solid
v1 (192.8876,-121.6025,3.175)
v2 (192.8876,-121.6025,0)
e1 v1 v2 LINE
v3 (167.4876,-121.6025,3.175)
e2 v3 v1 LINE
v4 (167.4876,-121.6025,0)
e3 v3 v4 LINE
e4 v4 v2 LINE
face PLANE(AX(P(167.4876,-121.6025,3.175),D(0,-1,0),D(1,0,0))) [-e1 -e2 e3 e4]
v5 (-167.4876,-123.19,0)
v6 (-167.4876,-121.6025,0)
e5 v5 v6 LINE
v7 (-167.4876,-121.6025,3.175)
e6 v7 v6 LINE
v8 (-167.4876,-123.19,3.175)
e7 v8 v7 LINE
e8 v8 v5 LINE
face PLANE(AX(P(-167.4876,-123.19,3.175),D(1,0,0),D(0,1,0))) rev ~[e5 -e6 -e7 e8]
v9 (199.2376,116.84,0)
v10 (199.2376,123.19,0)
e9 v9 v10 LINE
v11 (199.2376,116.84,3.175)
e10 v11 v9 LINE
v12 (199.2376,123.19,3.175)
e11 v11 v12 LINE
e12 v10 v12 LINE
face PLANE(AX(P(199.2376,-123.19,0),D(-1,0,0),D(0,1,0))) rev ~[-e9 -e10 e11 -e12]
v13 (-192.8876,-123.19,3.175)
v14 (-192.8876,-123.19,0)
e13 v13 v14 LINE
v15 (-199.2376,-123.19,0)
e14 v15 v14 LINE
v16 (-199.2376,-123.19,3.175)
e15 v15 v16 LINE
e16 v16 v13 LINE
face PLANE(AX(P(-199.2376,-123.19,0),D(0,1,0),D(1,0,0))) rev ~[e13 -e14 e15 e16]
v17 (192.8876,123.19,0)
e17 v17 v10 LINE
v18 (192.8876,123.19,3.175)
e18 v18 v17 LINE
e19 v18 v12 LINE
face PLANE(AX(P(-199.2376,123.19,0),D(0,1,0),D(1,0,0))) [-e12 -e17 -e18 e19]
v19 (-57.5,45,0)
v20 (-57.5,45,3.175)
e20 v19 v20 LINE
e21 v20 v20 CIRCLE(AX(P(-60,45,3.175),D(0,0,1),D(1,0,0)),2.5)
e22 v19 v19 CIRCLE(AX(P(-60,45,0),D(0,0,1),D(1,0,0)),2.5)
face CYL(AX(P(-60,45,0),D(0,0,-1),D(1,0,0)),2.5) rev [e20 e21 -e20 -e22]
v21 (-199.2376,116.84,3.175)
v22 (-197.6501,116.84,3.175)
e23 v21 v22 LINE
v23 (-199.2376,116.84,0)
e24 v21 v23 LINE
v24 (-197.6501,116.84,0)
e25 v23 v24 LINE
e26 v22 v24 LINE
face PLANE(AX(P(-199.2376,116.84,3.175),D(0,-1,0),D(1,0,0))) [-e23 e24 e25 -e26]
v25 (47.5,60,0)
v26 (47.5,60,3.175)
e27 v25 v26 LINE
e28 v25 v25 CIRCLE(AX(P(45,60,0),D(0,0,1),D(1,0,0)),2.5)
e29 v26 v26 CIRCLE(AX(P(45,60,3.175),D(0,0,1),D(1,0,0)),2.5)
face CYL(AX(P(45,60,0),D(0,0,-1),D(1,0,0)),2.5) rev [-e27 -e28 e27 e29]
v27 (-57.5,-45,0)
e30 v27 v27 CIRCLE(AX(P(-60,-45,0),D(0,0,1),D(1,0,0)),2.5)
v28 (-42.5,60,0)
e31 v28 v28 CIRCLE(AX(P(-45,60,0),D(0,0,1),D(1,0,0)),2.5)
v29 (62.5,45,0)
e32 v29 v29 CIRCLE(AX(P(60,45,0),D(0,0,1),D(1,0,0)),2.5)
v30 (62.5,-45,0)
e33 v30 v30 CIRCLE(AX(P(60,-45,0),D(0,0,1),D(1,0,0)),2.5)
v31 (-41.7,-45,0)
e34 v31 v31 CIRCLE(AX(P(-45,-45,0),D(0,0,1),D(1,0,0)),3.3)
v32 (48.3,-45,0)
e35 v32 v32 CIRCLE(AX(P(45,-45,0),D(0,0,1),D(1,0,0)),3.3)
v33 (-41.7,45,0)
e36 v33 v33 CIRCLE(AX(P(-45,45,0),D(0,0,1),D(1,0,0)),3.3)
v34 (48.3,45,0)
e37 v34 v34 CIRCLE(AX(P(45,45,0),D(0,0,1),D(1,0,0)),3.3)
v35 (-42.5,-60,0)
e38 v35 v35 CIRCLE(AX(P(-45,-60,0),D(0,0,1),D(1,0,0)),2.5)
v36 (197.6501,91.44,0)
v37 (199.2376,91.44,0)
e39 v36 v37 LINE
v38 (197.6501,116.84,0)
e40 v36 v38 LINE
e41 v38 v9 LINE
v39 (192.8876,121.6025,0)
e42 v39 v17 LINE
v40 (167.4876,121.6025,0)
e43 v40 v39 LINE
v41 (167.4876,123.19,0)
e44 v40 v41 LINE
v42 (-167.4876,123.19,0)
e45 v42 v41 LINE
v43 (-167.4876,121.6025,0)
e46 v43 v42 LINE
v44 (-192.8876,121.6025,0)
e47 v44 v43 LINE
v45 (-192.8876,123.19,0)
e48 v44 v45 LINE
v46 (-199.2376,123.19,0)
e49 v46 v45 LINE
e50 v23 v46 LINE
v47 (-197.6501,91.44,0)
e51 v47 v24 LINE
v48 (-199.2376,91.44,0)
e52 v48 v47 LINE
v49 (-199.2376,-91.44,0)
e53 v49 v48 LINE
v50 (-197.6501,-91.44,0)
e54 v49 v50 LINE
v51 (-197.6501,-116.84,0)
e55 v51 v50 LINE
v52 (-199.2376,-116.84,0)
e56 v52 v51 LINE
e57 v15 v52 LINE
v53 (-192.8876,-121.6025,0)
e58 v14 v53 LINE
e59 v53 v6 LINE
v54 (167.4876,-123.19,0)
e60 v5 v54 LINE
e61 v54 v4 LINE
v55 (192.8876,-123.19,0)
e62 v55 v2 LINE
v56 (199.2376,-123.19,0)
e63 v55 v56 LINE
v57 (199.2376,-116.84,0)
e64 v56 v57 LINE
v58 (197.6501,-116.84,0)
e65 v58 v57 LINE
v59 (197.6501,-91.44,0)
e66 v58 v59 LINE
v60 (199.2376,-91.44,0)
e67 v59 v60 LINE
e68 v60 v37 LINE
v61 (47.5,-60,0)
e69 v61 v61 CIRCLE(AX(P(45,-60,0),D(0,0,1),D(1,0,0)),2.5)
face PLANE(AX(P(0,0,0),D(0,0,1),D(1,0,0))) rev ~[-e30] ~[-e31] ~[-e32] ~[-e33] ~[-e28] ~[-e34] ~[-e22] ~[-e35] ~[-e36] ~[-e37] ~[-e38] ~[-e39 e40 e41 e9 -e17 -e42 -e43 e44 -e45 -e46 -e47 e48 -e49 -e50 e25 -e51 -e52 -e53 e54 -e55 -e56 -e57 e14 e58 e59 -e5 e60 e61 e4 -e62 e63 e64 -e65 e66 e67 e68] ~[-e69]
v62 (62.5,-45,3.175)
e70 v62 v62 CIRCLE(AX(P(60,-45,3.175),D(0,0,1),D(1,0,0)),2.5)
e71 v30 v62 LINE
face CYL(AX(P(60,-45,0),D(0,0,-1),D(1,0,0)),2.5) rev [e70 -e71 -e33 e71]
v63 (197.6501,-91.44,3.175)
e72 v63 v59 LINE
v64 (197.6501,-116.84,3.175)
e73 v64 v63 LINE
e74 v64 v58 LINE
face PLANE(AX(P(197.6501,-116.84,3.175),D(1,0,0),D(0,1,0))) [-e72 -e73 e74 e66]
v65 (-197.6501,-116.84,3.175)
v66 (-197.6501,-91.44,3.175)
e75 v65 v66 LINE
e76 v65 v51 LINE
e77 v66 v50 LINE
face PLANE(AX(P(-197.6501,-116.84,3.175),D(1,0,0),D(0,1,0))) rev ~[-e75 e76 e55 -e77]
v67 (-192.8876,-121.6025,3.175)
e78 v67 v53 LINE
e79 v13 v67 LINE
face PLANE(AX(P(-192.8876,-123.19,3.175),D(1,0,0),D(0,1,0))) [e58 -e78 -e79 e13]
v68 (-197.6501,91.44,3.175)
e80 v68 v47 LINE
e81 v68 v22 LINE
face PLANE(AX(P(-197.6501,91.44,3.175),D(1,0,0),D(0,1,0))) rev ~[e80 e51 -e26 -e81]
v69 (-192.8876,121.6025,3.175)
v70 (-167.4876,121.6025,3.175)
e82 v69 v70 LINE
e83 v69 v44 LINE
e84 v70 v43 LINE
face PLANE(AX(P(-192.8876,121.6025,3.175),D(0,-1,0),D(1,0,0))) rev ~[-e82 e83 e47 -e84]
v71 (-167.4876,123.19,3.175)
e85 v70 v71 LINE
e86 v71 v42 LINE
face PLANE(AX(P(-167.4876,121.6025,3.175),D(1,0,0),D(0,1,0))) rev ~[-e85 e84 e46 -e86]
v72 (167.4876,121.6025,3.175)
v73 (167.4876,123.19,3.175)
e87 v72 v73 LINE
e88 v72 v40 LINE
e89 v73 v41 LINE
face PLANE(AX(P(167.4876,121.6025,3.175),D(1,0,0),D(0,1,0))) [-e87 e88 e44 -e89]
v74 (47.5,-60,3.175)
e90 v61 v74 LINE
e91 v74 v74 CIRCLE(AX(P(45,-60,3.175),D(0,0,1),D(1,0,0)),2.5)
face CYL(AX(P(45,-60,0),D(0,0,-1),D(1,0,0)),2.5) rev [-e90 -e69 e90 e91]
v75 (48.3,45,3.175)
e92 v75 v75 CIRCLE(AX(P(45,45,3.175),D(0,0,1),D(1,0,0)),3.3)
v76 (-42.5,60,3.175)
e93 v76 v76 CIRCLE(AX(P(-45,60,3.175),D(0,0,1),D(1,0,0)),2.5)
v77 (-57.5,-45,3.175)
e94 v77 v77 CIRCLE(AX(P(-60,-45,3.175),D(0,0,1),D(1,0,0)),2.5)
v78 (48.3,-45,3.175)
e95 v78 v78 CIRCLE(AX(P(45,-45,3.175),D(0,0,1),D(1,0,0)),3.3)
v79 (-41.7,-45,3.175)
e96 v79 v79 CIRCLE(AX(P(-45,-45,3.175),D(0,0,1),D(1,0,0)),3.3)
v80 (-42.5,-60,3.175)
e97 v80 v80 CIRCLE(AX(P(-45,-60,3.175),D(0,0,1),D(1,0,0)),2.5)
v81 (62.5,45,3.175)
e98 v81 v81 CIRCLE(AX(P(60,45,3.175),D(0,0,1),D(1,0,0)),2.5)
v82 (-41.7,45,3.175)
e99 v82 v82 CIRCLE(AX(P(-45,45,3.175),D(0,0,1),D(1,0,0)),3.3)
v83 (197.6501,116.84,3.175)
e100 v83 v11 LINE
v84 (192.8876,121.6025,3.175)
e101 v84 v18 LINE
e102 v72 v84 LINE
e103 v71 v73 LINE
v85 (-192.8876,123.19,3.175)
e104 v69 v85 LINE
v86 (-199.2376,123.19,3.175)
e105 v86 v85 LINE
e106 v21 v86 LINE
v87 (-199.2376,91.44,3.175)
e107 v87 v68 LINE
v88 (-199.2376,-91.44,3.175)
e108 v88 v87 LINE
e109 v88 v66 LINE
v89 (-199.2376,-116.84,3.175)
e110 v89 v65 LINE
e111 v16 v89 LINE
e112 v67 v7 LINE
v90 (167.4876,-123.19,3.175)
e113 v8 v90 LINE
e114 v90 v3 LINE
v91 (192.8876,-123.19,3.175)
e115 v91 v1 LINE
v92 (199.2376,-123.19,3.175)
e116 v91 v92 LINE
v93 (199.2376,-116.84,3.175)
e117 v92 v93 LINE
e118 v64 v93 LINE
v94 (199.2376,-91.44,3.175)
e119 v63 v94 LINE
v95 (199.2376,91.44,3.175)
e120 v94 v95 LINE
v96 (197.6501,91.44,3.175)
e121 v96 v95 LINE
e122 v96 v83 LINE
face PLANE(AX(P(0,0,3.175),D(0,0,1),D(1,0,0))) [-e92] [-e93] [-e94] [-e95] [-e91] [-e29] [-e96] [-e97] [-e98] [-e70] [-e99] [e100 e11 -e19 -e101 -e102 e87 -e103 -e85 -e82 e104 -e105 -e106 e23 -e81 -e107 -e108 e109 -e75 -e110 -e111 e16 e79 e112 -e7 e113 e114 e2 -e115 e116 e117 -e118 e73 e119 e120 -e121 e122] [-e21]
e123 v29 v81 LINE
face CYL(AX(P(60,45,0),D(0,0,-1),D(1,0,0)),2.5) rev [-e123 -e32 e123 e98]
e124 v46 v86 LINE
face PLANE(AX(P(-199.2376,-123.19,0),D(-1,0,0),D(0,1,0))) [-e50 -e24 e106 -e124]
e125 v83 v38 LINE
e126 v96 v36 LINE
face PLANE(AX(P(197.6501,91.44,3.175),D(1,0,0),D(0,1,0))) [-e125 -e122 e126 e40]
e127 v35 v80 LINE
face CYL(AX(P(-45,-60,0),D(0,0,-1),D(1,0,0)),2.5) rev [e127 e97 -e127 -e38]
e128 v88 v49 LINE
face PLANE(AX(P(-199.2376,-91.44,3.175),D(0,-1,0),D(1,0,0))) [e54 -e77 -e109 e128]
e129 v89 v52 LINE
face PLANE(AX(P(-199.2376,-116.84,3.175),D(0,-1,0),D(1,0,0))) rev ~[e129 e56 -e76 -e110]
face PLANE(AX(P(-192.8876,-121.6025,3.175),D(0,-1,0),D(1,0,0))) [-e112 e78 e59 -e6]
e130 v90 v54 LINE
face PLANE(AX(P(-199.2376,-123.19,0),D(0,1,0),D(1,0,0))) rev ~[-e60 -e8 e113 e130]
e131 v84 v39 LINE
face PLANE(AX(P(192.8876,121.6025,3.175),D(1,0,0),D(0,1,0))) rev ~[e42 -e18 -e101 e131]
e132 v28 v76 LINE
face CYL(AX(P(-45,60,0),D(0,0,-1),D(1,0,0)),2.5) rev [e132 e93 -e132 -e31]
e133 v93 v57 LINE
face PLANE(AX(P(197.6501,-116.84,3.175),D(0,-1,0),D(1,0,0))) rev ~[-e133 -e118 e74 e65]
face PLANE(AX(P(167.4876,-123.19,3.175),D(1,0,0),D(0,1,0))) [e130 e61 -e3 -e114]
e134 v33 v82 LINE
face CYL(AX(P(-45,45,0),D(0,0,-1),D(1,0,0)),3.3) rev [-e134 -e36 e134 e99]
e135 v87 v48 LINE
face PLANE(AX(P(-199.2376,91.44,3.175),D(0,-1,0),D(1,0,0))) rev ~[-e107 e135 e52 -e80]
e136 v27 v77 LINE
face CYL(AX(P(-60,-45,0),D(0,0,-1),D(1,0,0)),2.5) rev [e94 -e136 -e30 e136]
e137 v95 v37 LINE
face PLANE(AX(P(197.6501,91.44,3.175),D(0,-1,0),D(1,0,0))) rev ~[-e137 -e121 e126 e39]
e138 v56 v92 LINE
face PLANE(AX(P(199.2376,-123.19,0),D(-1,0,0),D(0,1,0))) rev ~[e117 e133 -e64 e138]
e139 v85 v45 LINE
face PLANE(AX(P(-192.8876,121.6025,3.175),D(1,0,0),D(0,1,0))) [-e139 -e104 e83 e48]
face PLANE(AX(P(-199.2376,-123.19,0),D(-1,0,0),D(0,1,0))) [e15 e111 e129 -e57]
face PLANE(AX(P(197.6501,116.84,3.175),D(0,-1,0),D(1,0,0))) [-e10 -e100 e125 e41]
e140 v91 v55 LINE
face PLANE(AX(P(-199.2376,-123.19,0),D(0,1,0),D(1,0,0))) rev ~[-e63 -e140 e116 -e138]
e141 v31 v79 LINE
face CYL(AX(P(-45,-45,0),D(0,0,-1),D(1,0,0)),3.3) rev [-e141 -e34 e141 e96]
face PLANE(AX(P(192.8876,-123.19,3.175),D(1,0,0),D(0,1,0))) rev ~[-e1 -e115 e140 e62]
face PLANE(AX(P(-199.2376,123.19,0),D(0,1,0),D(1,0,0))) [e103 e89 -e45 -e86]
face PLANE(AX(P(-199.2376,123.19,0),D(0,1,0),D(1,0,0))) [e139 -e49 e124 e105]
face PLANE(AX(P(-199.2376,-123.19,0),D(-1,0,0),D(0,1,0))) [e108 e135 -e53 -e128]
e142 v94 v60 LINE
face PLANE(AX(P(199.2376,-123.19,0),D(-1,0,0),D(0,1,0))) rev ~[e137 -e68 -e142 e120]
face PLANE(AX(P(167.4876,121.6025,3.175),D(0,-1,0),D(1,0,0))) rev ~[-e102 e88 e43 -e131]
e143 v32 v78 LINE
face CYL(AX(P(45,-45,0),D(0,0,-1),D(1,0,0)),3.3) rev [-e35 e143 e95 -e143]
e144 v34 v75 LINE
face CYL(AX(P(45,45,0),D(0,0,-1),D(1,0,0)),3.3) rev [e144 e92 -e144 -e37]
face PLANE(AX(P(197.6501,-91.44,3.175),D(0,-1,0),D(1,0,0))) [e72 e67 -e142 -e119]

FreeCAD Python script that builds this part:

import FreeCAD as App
import Part
import Sketcher
from FreeCAD import Vector
Q = App.Units.Quantity

doc = App.newDocument("Part")
body = doc.addObject("PartDesign::Body", "Body")

# Sketch on XY plane
sketch1 = body.newObject("Sketcher::SketchObject", "Sketch")
sketch1.AttachmentSupport = (doc.getObject("XY_Plane"), [""])
sketch1.MapMode = "FlatFace"
sketch1.addGeometry([
    Part.LineSegment(Vector(-199.2376, 123.19, 0), Vector(-199.2376, -123.19, 0)),  # 0
    Part.LineSegment(Vector(-199.2376, -123.19, 0), Vector(199.2376, -123.19, 0)),  # 1
    Part.LineSegment(Vector(199.2376, -123.19, 0), Vector(199.2376, 123.19, 0)),  # 2
    Part.LineSegment(Vector(199.2376, 123.19, 0), Vector(-199.2376, 123.19, 0)),  # 3
    Part.Circle(Vector(-45, -60, 0), Vector(0, 0, 1), 2.5),  # 4
    Part.Circle(Vector(-60, -45, 0), Vector(0, 0, 1), 2.5),  # 5
    Part.Circle(Vector(-45, -45, 0), Vector(0, 0, 1), 3.3),  # 6
    Part.Circle(Vector(45, -60, 0), Vector(0, 0, 1), 2.5),  # 7
    Part.Circle(Vector(45, -45, 0), Vector(0, 0, 1), 3.3),  # 8
    Part.Circle(Vector(60, -45, 0), Vector(0, 0, 1), 2.5),  # 9
    Part.Circle(Vector(-60, 45, 0), Vector(0, 0, 1), 2.5),  # 10
    Part.Circle(Vector(-45, 45, 0), Vector(0, 0, 1), 3.3),  # 11
    Part.Circle(Vector(-45, 60, 0), Vector(0, 0, 1), 2.5),  # 12
    Part.Circle(Vector(45, 45, 0), Vector(0, 0, 1), 3.3),  # 13
    Part.Circle(Vector(60, 45, 0), Vector(0, 0, 1), 2.5),  # 14
    Part.Circle(Vector(45, 60, 0), Vector(0, 0, 1), 2.5),  # 15
], False)
sketch1.addConstraint([
    Sketcher.Constraint("Coincident", 0, 2, 1, 1),
    Sketcher.Constraint("Coincident", 1, 2, 2, 1),
    Sketcher.Constraint("Coincident", 2, 2, 3, 1),
    Sketcher.Constraint("Coincident", 3, 2, 0, 1),
    Sketcher.Constraint("Vertical", 0),
    Sketcher.Constraint("Horizontal", 1),
    Sketcher.Constraint("Vertical", 2),
    Sketcher.Constraint("Horizontal", 3),
    Sketcher.Constraint("Equal", 4, 5),
    Sketcher.Constraint("Equal", 5, 7),
    Sketcher.Constraint("Equal", 6, 8),
    Sketcher.Constraint("Equal", 7, 9),
    Sketcher.Constraint("Equal", 9, 10),
    Sketcher.Constraint("Equal", 8, 11),
    Sketcher.Constraint("Equal", 10, 12),
    Sketcher.Constraint("Equal", 11, 13),
    Sketcher.Constraint("Equal", 12, 14),
    Sketcher.Constraint("Equal", 14, 15),
    Sketcher.Constraint("Symmetric", 9, 3, 10, 3, -1, 1),
    Sketcher.Constraint("Symmetric", 8, 3, 11, 3, -1, 1),
    Sketcher.Constraint("Symmetric", 7, 3, 12, 3, -1, 1),
    Sketcher.Constraint("Symmetric", 6, 3, 13, 3, -1, 1),
    Sketcher.Constraint("Symmetric", 5, 3, 14, 3, -1, 1),
    Sketcher.Constraint("Symmetric", 4, 3, 15, 3, -1, 1),
    Sketcher.Constraint("Symmetric", 0, 2, 2, 2, -1, 1),
    Sketcher.Constraint("Symmetric", 4, 3, 7, 3, -2),
    Sketcher.Constraint("Symmetric", 6, 3, 8, 3, -2),
    Sketcher.Constraint("Symmetric", 5, 3, 9, 3, -2),
    Sketcher.Constraint("Horizontal", 5, 3, 6, 3),
    Sketcher.Constraint("Vertical", 4, 3, 6, 3),
    Sketcher.Constraint("DistanceY", 0, 2, 0, 1, Q("9.7 in")),
    Sketcher.Constraint("Diameter", 4, 5.0),
    Sketcher.Constraint("Diameter", 6, 6.6),
    Sketcher.Constraint("DistanceX", 1, 1, 1, 2, Q("15.688 in")),
    Sketcher.Constraint("DistanceX", 4, 3, -1, 1, 45.0),
    Sketcher.Constraint("DistanceY", 4, 3, -1, 1, 60.0),
    Sketcher.Constraint("DistanceX", 5, 3, -1, 1, 60.0),
    Sketcher.Constraint("DistanceY", 5, 3, -1, 1, 45.0),
])
pad1 = body.newObject("PartDesign::Pad", "Pad")
pad1.Profile = sketch1
pad1.Length = Q("0.125 in")

# Sketch on XY plane
sketch2 = body.newObject("Sketcher::SketchObject", "Sketch001")
sketch2.AttachmentSupport = (doc.getObject("XY_Plane"), [""])
sketch2.MapMode = "FlatFace"
sketch2.AttachmentOffset = App.Placement(Vector(0, 0, 0.125 * 25.4), App.Rotation())
sketch2.addGeometry([
    Part.LineSegment(Vector(-192.8876, 123.19, 0), Vector(-192.8876, 121.6025, 0)),  # 0
    Part.LineSegment(Vector(-192.8876, 121.6025, 0), Vector(-167.4876, 121.6025, 0)),  # 1
    Part.LineSegment(Vector(-167.4876, 121.6025, 0), Vector(-167.4876, 123.19, 0)),  # 2
    Part.LineSegment(Vector(-167.4876, 123.19, 0), Vector(-192.8876, 123.19, 0)),  # 3
    Part.LineSegment(Vector(167.4876, 123.19, 0), Vector(167.4876, 121.6025, 0)),  # 4
    Part.LineSegment(Vector(167.4876, 121.6025, 0), Vector(192.8876, 121.6025, 0)),  # 5
    Part.LineSegment(Vector(192.8876, 121.6025, 0), Vector(192.8876, 123.19, 0)),  # 6
    Part.LineSegment(Vector(192.8876, 123.19, 0), Vector(167.4876, 123.19, 0)),  # 7
    Part.LineSegment(Vector(-192.8876, -121.6025, 0), Vector(-192.8876, -123.19, 0)),  # 8
    Part.LineSegment(Vector(-192.8876, -123.19, 0), Vector(-167.4876, -123.19, 0)),  # 9
    Part.LineSegment(Vector(-167.4876, -123.19, 0), Vector(-167.4876, -121.6025, 0)),  # 10
    Part.LineSegment(Vector(-167.4876, -121.6025, 0), Vector(-192.8876, -121.6025, 0)),  # 11
    Part.LineSegment(Vector(167.4876, -121.6025, 0), Vector(167.4876, -123.19, 0)),  # 12
    Part.LineSegment(Vector(167.4876, -123.19, 0), Vector(192.8876, -123.19, 0)),  # 13
    Part.LineSegment(Vector(192.8876, -123.19, 0), Vector(192.8876, -121.6025, 0)),  # 14
    Part.LineSegment(Vector(192.8876, -121.6025, 0), Vector(167.4876, -121.6025, 0)),  # 15
    Part.LineSegment(Vector(-199.2376, 116.84, 0), Vector(-199.2376, 91.44, 0)),  # 16
    Part.LineSegment(Vector(-199.2376, 91.44, 0), Vector(-197.6501, 91.44, 0)),  # 17
    Part.LineSegment(Vector(-197.6501, 91.44, 0), Vector(-197.6501, 116.84, 0)),  # 18
    Part.LineSegment(Vector(-197.6501, 116.84, 0), Vector(-199.2376, 116.84, 0)),  # 19
    Part.LineSegment(Vector(197.6501, 116.84, 0), Vector(197.6501, 91.44, 0)),  # 20
    Part.LineSegment(Vector(197.6501, 91.44, 0), Vector(199.2376, 91.44, 0)),  # 21
    Part.LineSegment(Vector(199.2376, 91.44, 0), Vector(199.2376, 116.84, 0)),  # 22
    Part.LineSegment(Vector(199.2376, 116.84, 0), Vector(197.6501, 116.84, 0)),  # 23
    Part.LineSegment(Vector(-199.2376, -91.44, 0), Vector(-199.2376, -116.84, 0)),  # 24
    Part.LineSegment(Vector(-199.2376, -116.84, 0), Vector(-197.6501, -116.84, 0)),  # 25
    Part.LineSegment(Vector(-197.6501, -116.84, 0), Vector(-197.6501, -91.44, 0)),  # 26
    Part.LineSegment(Vector(-197.6501, -91.44, 0), Vector(-199.2376, -91.44, 0)),  # 27
    Part.LineSegment(Vector(197.6501, -91.44, 0), Vector(197.6501, -116.84, 0)),  # 28
    Part.LineSegment(Vector(197.6501, -116.84, 0), Vector(199.2376, -116.84, 0)),  # 29
    Part.LineSegment(Vector(199.2376, -116.84, 0), Vector(199.2376, -91.44, 0)),  # 30
    Part.LineSegment(Vector(199.2376, -91.44, 0), Vector(197.6501, -91.44, 0)),  # 31
], False)
sketch2.addConstraint([
    Sketcher.Constraint("Coincident", 0, 2, 1, 1),
    Sketcher.Constraint("Coincident", 1, 2, 2, 1),
    Sketcher.Constraint("Coincident", 2, 2, 3, 1),
    Sketcher.Constraint("Coincident", 3, 2, 0, 1),
    Sketcher.Constraint("Coincident", 4, 2, 5, 1),
    Sketcher.Constraint("Coincident", 5, 2, 6, 1),
    Sketcher.Constraint("Coincident", 6, 2, 7, 1),
    Sketcher.Constraint("Coincident", 7, 2, 4, 1),
    Sketcher.Constraint("Coincident", 8, 2, 9, 1),
    Sketcher.Constraint("Coincident", 9, 2, 10, 1),
    Sketcher.Constraint("Coincident", 10, 2, 11, 1),
    Sketcher.Constraint("Coincident", 11, 2, 8, 1),
    Sketcher.Constraint("Coincident", 12, 2, 13, 1),
    Sketcher.Constraint("Coincident", 13, 2, 14, 1),
    Sketcher.Constraint("Coincident", 14, 2, 15, 1),
    Sketcher.Constraint("Coincident", 15, 2, 12, 1),
    Sketcher.Constraint("Coincident", 16, 2, 17, 1),
    Sketcher.Constraint("Coincident", 17, 2, 18, 1),
    Sketcher.Constraint("Coincident", 18, 2, 19, 1),
    Sketcher.Constraint("Coincident", 19, 2, 16, 1),
    Sketcher.Constraint("Coincident", 20, 2, 21, 1),
    Sketcher.Constraint("Coincident", 21, 2, 22, 1),
    Sketcher.Constraint("Coincident", 22, 2, 23, 1),
    Sketcher.Constraint("Coincident", 23, 2, 20, 1),
    Sketcher.Constraint("Coincident", 24, 2, 25, 1),
    Sketcher.Constraint("Coincident", 25, 2, 26, 1),
    Sketcher.Constraint("Coincident", 26, 2, 27, 1),
    Sketcher.Constraint("Coincident", 27, 2, 24, 1),
    Sketcher.Constraint("Coincident", 28, 2, 29, 1),
    Sketcher.Constraint("Coincident", 29, 2, 30, 1),
    Sketcher.Constraint("Coincident", 30, 2, 31, 1),
    Sketcher.Constraint("Coincident", 31, 2, 28, 1),
    Sketcher.Constraint("Vertical", 0),
    Sketcher.Constraint("Horizontal", 1),
    Sketcher.Constraint("Vertical", 2),
    Sketcher.Constraint("Horizontal", 3),
    Sketcher.Constraint("Vertical", 4),
    Sketcher.Constraint("Horizontal", 5),
    Sketcher.Constraint("Vertical", 6),
    Sketcher.Constraint("Horizontal", 7),
    Sketcher.Constraint("Vertical", 8),
    Sketcher.Constraint("Horizontal", 9),
    Sketcher.Constraint("Vertical", 10),
    Sketcher.Constraint("Horizontal", 11),
    Sketcher.Constraint("Vertical", 12),
    Sketcher.Constraint("Horizontal", 13),
    Sketcher.Constraint("Vertical", 14),
    Sketcher.Constraint("Horizontal", 15),
    Sketcher.Constraint("Vertical", 16),
    Sketcher.Constraint("Horizontal", 17),
    Sketcher.Constraint("Vertical", 18),
    Sketcher.Constraint("Horizontal", 19),
    Sketcher.Constraint("Vertical", 20),
    Sketcher.Constraint("Horizontal", 21),
    Sketcher.Constraint("Vertical", 22),
    Sketcher.Constraint("Horizontal", 23),
    Sketcher.Constraint("Vertical", 24),
    Sketcher.Constraint("Horizontal", 25),
    Sketcher.Constraint("Vertical", 26),
    Sketcher.Constraint("Horizontal", 27),
    Sketcher.Constraint("Vertical", 28),
    Sketcher.Constraint("Horizontal", 29),
    Sketcher.Constraint("Vertical", 30),
    Sketcher.Constraint("Horizontal", 31),
    Sketcher.Constraint("Symmetric", 6, 2, 8, 2, -1, 1),
    Sketcher.Constraint("Symmetric", 4, 2, 10, 2, -1, 1),
    Sketcher.Constraint("Symmetric", 2, 2, 12, 2, -1, 1),
    Sketcher.Constraint("Symmetric", 0, 2, 14, 2, -1, 1),
    Sketcher.Constraint("Symmetric", 22, 2, 24, 2, -1, 1),
    Sketcher.Constraint("Symmetric", 20, 2, 26, 2, -1, 1),
    Sketcher.Constraint("Symmetric", 18, 2, 28, 2, -1, 1),
    Sketcher.Constraint("Symmetric", 16, 2, 30, 2, -1, 1),
    Sketcher.Constraint("Symmetric", 1, 2, 4, 2, -2),
    Sketcher.Constraint("Symmetric", 3, 2, 6, 2, -2),
    Sketcher.Constraint("Symmetric", 17, 2, 20, 2, -2),
    Sketcher.Constraint("Symmetric", 19, 2, 22, 2, -2),
    Sketcher.Constraint("Equal", 31, 0),
    Sketcher.Constraint("Equal", 15, 16),
    Sketcher.Constraint("DistanceX", 1, 1, 1, 2, Q("1 in")),
    Sketcher.Constraint("DistanceY", -1, 1, 16, 2, Q("3.6 in")),
    Sketcher.Constraint("DistanceY", 8, 2, 3, 2, Q("9.7 in")),
    Sketcher.Constraint("DistanceX", 17, 1, 17, 2, Q("0.0625 in")),
    Sketcher.Constraint("DistanceX", 16, 2, 0, 2, Q("0.25 in")),
    Sketcher.Constraint("DistanceX", 0, 2, -1, 1, Q("7.594 in")),
])
pocket1 = body.newObject("PartDesign::Pocket", "Pocket")
pocket1.Profile = sketch2
pocket1.Type = "ThroughAll"

doc.recompute()
